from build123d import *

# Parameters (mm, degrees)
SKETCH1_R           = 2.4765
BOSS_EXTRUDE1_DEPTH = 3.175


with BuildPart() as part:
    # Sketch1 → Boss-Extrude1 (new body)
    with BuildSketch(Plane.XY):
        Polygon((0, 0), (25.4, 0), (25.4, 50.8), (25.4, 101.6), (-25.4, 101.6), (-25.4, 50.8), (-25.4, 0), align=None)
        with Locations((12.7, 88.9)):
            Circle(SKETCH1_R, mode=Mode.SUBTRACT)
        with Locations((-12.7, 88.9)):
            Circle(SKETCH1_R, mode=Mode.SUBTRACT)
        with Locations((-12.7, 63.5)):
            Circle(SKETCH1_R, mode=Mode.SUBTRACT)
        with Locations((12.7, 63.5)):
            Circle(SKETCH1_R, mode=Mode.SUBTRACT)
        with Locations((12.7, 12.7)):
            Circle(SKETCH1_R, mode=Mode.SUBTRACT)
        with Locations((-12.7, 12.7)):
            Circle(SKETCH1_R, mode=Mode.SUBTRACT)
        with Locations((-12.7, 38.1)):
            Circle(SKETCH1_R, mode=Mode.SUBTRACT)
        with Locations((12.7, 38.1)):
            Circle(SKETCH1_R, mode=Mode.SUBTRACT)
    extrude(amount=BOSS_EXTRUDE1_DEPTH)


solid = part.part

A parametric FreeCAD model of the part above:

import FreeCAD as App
import Part
import Sketcher
Q = App.Units.Quantity


def add_polygon(sketch, points):
    """Adds a closed chain of lines whose ends are joined by coincident constraints."""
    first, n = sketch.GeometryCount, len(points)
    for a, b in zip(points, points[1:] + points[:1]):
        sketch.addGeometry(Part.LineSegment(App.Vector(*a, 0), App.Vector(*b, 0)), False)
    for i in range(n):
        sketch.addConstraint(Sketcher.Constraint("Coincident", first + i, 2, first + (i + 1) % n, 1))

doc = App.newDocument("Part")
body = doc.addObject("PartDesign::Body", "Body")

# Sketch on XY plane
sketch1 = body.newObject("Sketcher::SketchObject", "Sketch")
sketch1.AttachmentSupport = (doc.getObject("XY_Plane"), [""])
sketch1.MapMode = "FlatFace"
add_polygon(sketch1, [(25.4, 0), (25.4, 101.6), (-25.4, 101.6), (-25.4, 0)])  # lines 0-3
sketch1.addGeometry(Part.Circle(App.Vector(-12.7, 12.7, 0), App.Vector(0, 0, 1), 2.5), False)  # 4
sketch1.addGeometry(Part.Circle(App.Vector(-12.7, 38.1, 0), App.Vector(0, 0, 1), 2.5), False)  # 5
sketch1.addGeometry(Part.Circle(App.Vector(12.7, 12.7, 0), App.Vector(0, 0, 1), 2.5), False)  # 6
sketch1.addGeometry(Part.Circle(App.Vector(12.7, 38.1, 0), App.Vector(0, 0, 1), 2.5), False)  # 7
sketch1.addGeometry(Part.Circle(App.Vector(-12.7, 63.5, 0), App.Vector(0, 0, 1), 2.5), False)  # 8
sketch1.addGeometry(Part.Circle(App.Vector(-12.7, 88.9, 0), App.Vector(0, 0, 1), 2.5), False)  # 9
sketch1.addGeometry(Part.Circle(App.Vector(12.7, 63.5, 0), App.Vector(0, 0, 1), 2.5), False)  # 10
sketch1.addGeometry(Part.Circle(App.Vector(12.7, 88.9, 0), App.Vector(0, 0, 1), 2.5), False)  # 11
sketch1.addConstraint([
    Sketcher.Constraint("Vertical", 0),
    Sketcher.Constraint("Horizontal", 1),
    Sketcher.Constraint("Vertical", 2),
    Sketcher.Constraint("Horizontal", 3),
    Sketcher.Constraint("Equal", 4, 5),
    Sketcher.Constraint("Equal", 5, 6),
    Sketcher.Constraint("Equal", 6, 7),
    Sketcher.Constraint("Equal", 7, 8),
    Sketcher.Constraint("Equal", 8, 9),
    Sketcher.Constraint("Equal", 9, 10),
    Sketcher.Constraint("Equal", 10, 11),
    Sketcher.Constraint("Symmetric", 2, 2, 3, 2, -1, 1),
    Sketcher.Constraint("Symmetric", 4, 3, 6, 3, -2),
    Sketcher.Constraint("Symmetric", 5, 3, 7, 3, -2),
    Sketcher.Constraint("Symmetric", 8, 3, 10, 3, -2),
    Sketcher.Constraint("Symmetric", 9, 3, 11, 3, -2),
    Sketcher.Constraint("Vertical", 4, 3, 5, 3),
    Sketcher.Constraint("Vertical", 5, 3, 8, 3),
    Sketcher.Constraint("Vertical", 8, 3, 9, 3),
    Sketcher.Constraint("DistanceX", 1, 2, 1, 1, Q("2 in")),
    Sketcher.Constraint("DistanceY", 0, 1, 0, 2, Q("4 in")),
    Sketcher.Constraint("Diameter", 4, Q("0.195 in")),
    Sketcher.Constraint("DistanceY", 4, 3, 5, 3, Q("1 in")),
    Sketcher.Constraint("DistanceX", 4, 3, 6, 3, Q("1 in")),
    Sketcher.Constraint("DistanceY", 5, 3, 8, 3, Q("1 in")),
    Sketcher.Constraint("DistanceY", 8, 3, 9, 3, Q("1 in")),
    Sketcher.Constraint("DistanceY", -1, 1, 4, 3, Q("0.5 in")),
])
pad1 = body.newObject("PartDesign::Pad", "Pad")
pad1.Profile = sketch1
pad1.Length = Q("0.125 in")

doc.recompute()
